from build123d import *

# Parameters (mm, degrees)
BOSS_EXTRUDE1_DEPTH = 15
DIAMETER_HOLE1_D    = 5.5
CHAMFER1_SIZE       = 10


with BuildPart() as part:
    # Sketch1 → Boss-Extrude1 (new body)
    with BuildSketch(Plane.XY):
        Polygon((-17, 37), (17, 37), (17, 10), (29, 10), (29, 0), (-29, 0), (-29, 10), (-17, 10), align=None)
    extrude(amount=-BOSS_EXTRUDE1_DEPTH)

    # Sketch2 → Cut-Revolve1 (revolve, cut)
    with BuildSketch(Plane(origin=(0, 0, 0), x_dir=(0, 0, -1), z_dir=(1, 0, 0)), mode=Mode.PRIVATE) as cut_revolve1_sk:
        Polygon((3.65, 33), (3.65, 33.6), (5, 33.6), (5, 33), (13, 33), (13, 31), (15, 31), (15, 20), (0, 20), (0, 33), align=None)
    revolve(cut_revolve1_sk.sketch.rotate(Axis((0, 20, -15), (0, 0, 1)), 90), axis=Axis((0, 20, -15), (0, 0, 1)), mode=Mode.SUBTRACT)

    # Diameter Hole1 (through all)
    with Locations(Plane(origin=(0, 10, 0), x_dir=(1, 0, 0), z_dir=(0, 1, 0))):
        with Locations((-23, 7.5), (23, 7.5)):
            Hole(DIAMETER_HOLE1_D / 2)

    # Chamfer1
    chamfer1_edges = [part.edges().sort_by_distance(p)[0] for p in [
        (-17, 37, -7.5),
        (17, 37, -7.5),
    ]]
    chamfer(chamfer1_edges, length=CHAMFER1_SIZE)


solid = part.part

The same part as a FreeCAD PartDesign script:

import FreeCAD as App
import Part
import Sketcher


def edges_at(feature, points):
    """Names of the edges that pass closest to the given points."""
    edges = feature.Shape.Edges
    near = lambda p: min(range(len(edges)), key=lambda i: edges[i].distToShape(Part.Vertex(*p))[0])
    return sorted({f"Edge{near(p) + 1}" for p in points})


def add_polygon(sketch, points):
    """Adds a closed chain of lines whose ends are joined by coincident constraints."""
    first, n = sketch.GeometryCount, len(points)
    for a, b in zip(points, points[1:] + points[:1]):
        sketch.addGeometry(Part.LineSegment(App.Vector(*a, 0), App.Vector(*b, 0)), False)
    for i in range(n):
        sketch.addConstraint(Sketcher.Constraint("Coincident", first + i, 2, first + (i + 1) % n, 1))

doc = App.newDocument("Part")
params = doc.addObject("Spreadsheet::Sheet", "Params")
for row, (alias, value) in enumerate([
    ("sketch1_width", "34 mm"),
    ("sketch1_width2", "12 mm"),
    ("sketch1_height", "27 mm"),
    ("sketch1_height2", "10 mm"),
    ("pad1_length", "15 mm"),
    ("sketch2_width", "13 mm"),
    ("sketch2_width2", "11 mm"),
    ("sketch2_height", "15 mm"),
    ("sketch2_height2", "8 mm"),
    ("sketch2_width3", "0.6 mm"),
    ("groove_angle", "360 deg"),
    ("sketch3_diameter", "5.5 mm"),
    ("hole_diameter", "5.5 mm"),
    ("chamfer_size", "10 mm"),
], start=1):
    params.set(f"A{row}", alias)
    params.set(f"B{row}", "=" + value)
    params.setAlias(f"B{row}", alias)

body = doc.addObject("PartDesign::Body", "Body")

sketch1 = body.newObject("Sketcher::SketchObject", "Sketch")
sketch1.AttachmentSupport = (doc.getObject("XY_Plane"), [""])
sketch1.MapMode = "FlatFace"
add_polygon(sketch1, [(17, 37), (-17, 37), (-17, 10), (-29, 10), (-29, 0), (29, 0), (29, 10), (17, 10)])
sketch1.addConstraint([
    Sketcher.Constraint("Horizontal", 0),
    Sketcher.Constraint("Vertical", 1),
    Sketcher.Constraint("Horizontal", 2),
    Sketcher.Constraint("Vertical", 3),
    Sketcher.Constraint("Horizontal", 4),
    Sketcher.Constraint("Vertical", 5),
    Sketcher.Constraint("Horizontal", 6),
    Sketcher.Constraint("Vertical", 7),
    Sketcher.Constraint("Symmetric", 3, 2, 4, 2, -1, 1),
    Sketcher.Constraint("Symmetric", 1, 2, 6, 2, -2),
    Sketcher.Constraint("DistanceX", 0, 2, 0, 1, 34.0),
    Sketcher.Constraint("DistanceX", 2, 2, 2, 1, 12.0),
    Sketcher.Constraint("DistanceY", 1, 2, 1, 1, 27.0),
    Sketcher.Constraint("DistanceY", 3, 2, 3, 1, 10.0),
])
sketch1.setExpression("Constraints[18]", "Params.sketch1_width")
sketch1.setExpression("Constraints[19]", "Params.sketch1_width2")
sketch1.setExpression("Constraints[20]", "Params.sketch1_height")
sketch1.setExpression("Constraints[21]", "Params.sketch1_height2")
pad1 = body.newObject("PartDesign::Pad", "Pad")
pad1.Profile = sketch1
pad1.setExpression("Length", "Params.pad1_length")
pad1.Reversed = True

sketch2 = body.newObject("Sketcher::SketchObject", "Sketch001")
sketch2.AttachmentSupport = (doc.getObject("YZ_Plane"), [""])
sketch2.MapMode = "FlatFace"
add_polygon(sketch2, [(33.6, -3.6), (33, -3.6), (33, 0), (20, 0), (20, -15), (31, -15), (31, -13), (33, -13), (33, -5), (33.6, -5)])
sketch2.addGeometry(Part.LineSegment(App.Vector(20, -15, 0), App.Vector(20, 0, 0)), True)
sketch2.addConstraint([
    Sketcher.Constraint("Horizontal", 0),
    Sketcher.Constraint("Vertical", 1),
    Sketcher.Constraint("Horizontal", 2),
    Sketcher.Constraint("Vertical", 3),
    Sketcher.Constraint("Horizontal", 4),
    Sketcher.Constraint("Vertical", 5),
    Sketcher.Constraint("Horizontal", 6),
    Sketcher.Constraint("Vertical", 7),
    Sketcher.Constraint("Horizontal", 8),
    Sketcher.Constraint("Vertical", 9),
    Sketcher.Constraint("Vertical", 10),
    Sketcher.Constraint("Coincident", 10, 1, 3, 2),
    Sketcher.Constraint("PointOnObject", 1, 2, -1),
    Sketcher.Constraint("PointOnObject", 10, 2, -1),
    Sketcher.Constraint("Vertical", 1, 2, 6, 2),
    Sketcher.Constraint("Equal", 6, 5),
    Sketcher.Constraint("DistanceX", 2, 2, 2, 1, 13.0),
    Sketcher.Constraint("DistanceX", 4, 1, 4, 2, 11.0),
    Sketcher.Constraint("DistanceY", 3, 2, 3, 1, 15.0),
    Sketcher.Constraint("DistanceY", 7, 1, 7, 2, 8.0),
    Sketcher.Constraint("DistanceX", 0, 2, 0, 1, 0.6),
    Sketcher.Constraint("DistanceX", -1, 1, 0, 2, 33.0),
    Sketcher.Constraint("DistanceY", 1, 1, 1, 2, 3.65),
])
sketch2.setExpression("Constraints[26]", "Params.sketch2_width")
sketch2.setExpression("Constraints[27]", "Params.sketch2_width2")
sketch2.setExpression("Constraints[28]", "Params.sketch2_height")
sketch2.setExpression("Constraints[29]", "Params.sketch2_height2")
sketch2.setExpression("Constraints[30]", "Params.sketch2_width3")
groove = body.newObject("PartDesign::Groove", "Groove")
groove.Profile = sketch2
groove.ReferenceAxis = (sketch2, ["Axis0"])
groove.setExpression("Angle", "Params.groove_angle")

sketch3 = body.newObject("Sketcher::SketchObject", "Sketch002")
sketch3.AttachmentSupport = (doc.getObject("XZ_Plane"), [""])
sketch3.MapMode = "FlatFace"
sketch3.AttachmentOffset = App.Placement(App.Vector(0, 0, -10), App.Rotation())
sketch3.addGeometry([
    Part.Circle(App.Vector(-23, -7.5, 0), App.Vector(0, 0, 1), 2.8),
    Part.Circle(App.Vector(23, -7.5, 0), App.Vector(0, 0, 1), 2.8),
], False)
sketch3.addConstraint([
    Sketcher.Constraint("Equal", 0, 1),
    Sketcher.Constraint("Symmetric", 0, 3, 1, 3, -2),
    Sketcher.Constraint("Diameter", 0, 5.5),
    Sketcher.Constraint("DistanceX", 0, 3, -1, 1, 23.0),
    Sketcher.Constraint("DistanceY", 0, 3, -1, 1, 7.5),
])
sketch3.setExpression("Constraints[2]", "Params.sketch3_diameter")
doc.recompute()
hole = body.newObject("PartDesign::Hole", "Hole")
hole.Profile = sketch3
hole.ThreadType = "None"
hole.setExpression("Diameter", "Params.hole_diameter")
hole.DepthType = "ThroughAll"
hole.Reversed = True
doc.recompute()

chamfer = body.newObject("PartDesign::Chamfer", "Chamfer")
chamfer.Base = (hole, edges_at(hole, [(-17, 37, -7.5), (17, 37, -7.5)]))
chamfer.setExpression("Size", "Params.chamfer_size")

doc.recompute()
